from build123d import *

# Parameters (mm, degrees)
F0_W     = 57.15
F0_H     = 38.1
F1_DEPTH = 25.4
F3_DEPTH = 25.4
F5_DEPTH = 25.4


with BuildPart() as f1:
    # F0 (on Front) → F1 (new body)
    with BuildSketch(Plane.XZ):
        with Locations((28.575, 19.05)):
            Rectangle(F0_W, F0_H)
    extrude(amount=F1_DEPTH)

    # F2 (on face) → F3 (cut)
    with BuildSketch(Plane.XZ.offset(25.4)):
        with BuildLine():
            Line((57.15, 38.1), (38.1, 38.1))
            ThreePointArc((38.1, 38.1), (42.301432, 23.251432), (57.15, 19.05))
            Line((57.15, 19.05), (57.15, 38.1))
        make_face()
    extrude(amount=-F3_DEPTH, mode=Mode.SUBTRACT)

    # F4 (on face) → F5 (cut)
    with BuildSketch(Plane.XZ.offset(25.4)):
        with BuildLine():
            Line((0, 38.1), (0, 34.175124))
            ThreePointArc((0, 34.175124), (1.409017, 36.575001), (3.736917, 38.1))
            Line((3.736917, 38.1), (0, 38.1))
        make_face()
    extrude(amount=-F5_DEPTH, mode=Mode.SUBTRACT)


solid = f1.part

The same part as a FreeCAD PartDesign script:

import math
import FreeCAD as App
import Part
import Sketcher
Q = App.Units.Quantity


def add_polygon(sketch, points):
    """Adds a closed chain of lines whose ends are joined by coincident constraints."""
    first, n = sketch.GeometryCount, len(points)
    for a, b in zip(points, points[1:] + points[:1]):
        sketch.addGeometry(Part.LineSegment(App.Vector(*a, 0), App.Vector(*b, 0)), False)
    for i in range(n):
        sketch.addConstraint(Sketcher.Constraint("Coincident", first + i, 2, first + (i + 1) % n, 1))

doc = App.newDocument("Part")
body = doc.addObject("PartDesign::Body", "Body")

sketch1 = body.newObject("Sketcher::SketchObject", "Sketch")
sketch1.AttachmentSupport = (doc.getObject("XZ_Plane"), [""])
sketch1.MapMode = "FlatFace"
add_polygon(sketch1, [(0, 38), (0, 0), (57, 0), (57, 38)])
sketch1.addConstraint(Sketcher.Constraint("Vertical", 0))
sketch1.addConstraint(Sketcher.Constraint("Horizontal", 1))
sketch1.addConstraint(Sketcher.Constraint("Vertical", 2))
sketch1.addConstraint(Sketcher.Constraint("Horizontal", 3))
sketch1.addConstraint(Sketcher.Constraint("Coincident", 0, 2, -1, 1))
sketch1.addConstraint(Sketcher.Constraint("DistanceY", 0, 2, 0, 1, Q("1.5 in")))
sketch1.addConstraint(Sketcher.Constraint("DistanceX", 1, 1, 1, 2, Q("2.25 in")))
pad1 = body.newObject("PartDesign::Pad", "Pad")
pad1.Profile = sketch1
pad1.Length = Q("1 in")

sketch2 = body.newObject("Sketcher::SketchObject", "Sketch001")
sketch2.AttachmentSupport = (doc.getObject("XZ_Plane"), [""])
sketch2.MapMode = "FlatFace"
sketch2.AttachmentOffset = App.Placement(App.Vector(0, 0, 1 * 25.4), App.Rotation())
sketch2.addGeometry(Part.LineSegment(App.Vector(57, 38, 0), App.Vector(38, 38, 0)), False)
sketch2.addGeometry(Part.ArcOfCircle(Part.Circle(App.Vector(53, 34, 0), App.Vector(0, 0, 1), 16), math.radians(167), math.radians(283)), False)
sketch2.addGeometry(Part.LineSegment(App.Vector(57, 19, 0), App.Vector(57, 38, 0)), False)
sketch2.addConstraint(Sketcher.Constraint("Coincident", 0, 2, 1, 1))
sketch2.addConstraint(Sketcher.Constraint("Coincident", 1, 2, 2, 1))
sketch2.addConstraint(Sketcher.Constraint("Coincident", 2, 2, 0, 1))
sketch2.addConstraint(Sketcher.Constraint("Horizontal", 0))
sketch2.addConstraint(Sketcher.Constraint("Vertical", 2))
sketch2.addConstraint(Sketcher.Constraint("Equal", 0, 2))
sketch2.addConstraint(Sketcher.Constraint("DistanceX", 0, 2, 0, 1, Q("0.75 in")))
sketch2.addConstraint(Sketcher.Constraint("DistanceX", -1, 1, 0, 2, Q("1.5 in")))
sketch2.addConstraint(Sketcher.Constraint("DistanceY", -1, 1, 0, 2, Q("1.5 in")))
sketch2.addConstraint(Sketcher.Constraint("Radius", 1, 15.815028))
pocket1 = body.newObject("PartDesign::Pocket", "Pocket")
pocket1.Profile = sketch2
pocket1.Length = Q("1 in")

sketch3 = body.newObject("Sketcher::SketchObject", "Sketch002")
sketch3.AttachmentSupport = (doc.getObject("XZ_Plane"), [""])
sketch3.MapMode = "FlatFace"
sketch3.AttachmentOffset = App.Placement(App.Vector(0, 0, 1 * 25.4), App.Rotation())
sketch3.addGeometry(Part.LineSegment(App.Vector(0, 38.1, 0), App.Vector(0, 34.2, 0)), False)
sketch3.addGeometry(Part.ArcOfCircle(Part.Circle(App.Vector(5.8, 32.4, 0), App.Vector(0, 0, 1), 6.1), math.radians(110), math.radians(163)), False)
sketch3.addGeometry(Part.LineSegment(App.Vector(3.7, 38.1, 0), App.Vector(0, 38.1, 0)), False)
sketch3.addConstraint(Sketcher.Constraint("Coincident", 0, 2, 1, 2))
sketch3.addConstraint(Sketcher.Constraint("Coincident", 1, 1, 2, 1))
sketch3.addConstraint(Sketcher.Constraint("Coincident", 2, 2, 0, 1))
sketch3.addConstraint(Sketcher.Constraint("Vertical", 0))
sketch3.addConstraint(Sketcher.Constraint("Horizontal", 2))
sketch3.addConstraint(Sketcher.Constraint("PointOnObject", 0, 2, -2))
sketch3.addConstraint(Sketcher.Constraint("DistanceY", -1, 1, 1, 1, Q("1.5 in")))
sketch3.addConstraint(Sketcher.Constraint("Radius", 1, 6.10417))
sketch3.addConstraint(Sketcher.Constraint("DistanceX", 1, 1, 1, 3, Q("0.0823999 in")))
sketch3.addConstraint(Sketcher.Constraint("DistanceX", 2, 2, 2, 1, 3.736917))
pocket2 = body.newObject("PartDesign::Pocket", "Pocket001")
pocket2.Profile = sketch3
pocket2.Length = Q("1 in")

doc.recompute()
